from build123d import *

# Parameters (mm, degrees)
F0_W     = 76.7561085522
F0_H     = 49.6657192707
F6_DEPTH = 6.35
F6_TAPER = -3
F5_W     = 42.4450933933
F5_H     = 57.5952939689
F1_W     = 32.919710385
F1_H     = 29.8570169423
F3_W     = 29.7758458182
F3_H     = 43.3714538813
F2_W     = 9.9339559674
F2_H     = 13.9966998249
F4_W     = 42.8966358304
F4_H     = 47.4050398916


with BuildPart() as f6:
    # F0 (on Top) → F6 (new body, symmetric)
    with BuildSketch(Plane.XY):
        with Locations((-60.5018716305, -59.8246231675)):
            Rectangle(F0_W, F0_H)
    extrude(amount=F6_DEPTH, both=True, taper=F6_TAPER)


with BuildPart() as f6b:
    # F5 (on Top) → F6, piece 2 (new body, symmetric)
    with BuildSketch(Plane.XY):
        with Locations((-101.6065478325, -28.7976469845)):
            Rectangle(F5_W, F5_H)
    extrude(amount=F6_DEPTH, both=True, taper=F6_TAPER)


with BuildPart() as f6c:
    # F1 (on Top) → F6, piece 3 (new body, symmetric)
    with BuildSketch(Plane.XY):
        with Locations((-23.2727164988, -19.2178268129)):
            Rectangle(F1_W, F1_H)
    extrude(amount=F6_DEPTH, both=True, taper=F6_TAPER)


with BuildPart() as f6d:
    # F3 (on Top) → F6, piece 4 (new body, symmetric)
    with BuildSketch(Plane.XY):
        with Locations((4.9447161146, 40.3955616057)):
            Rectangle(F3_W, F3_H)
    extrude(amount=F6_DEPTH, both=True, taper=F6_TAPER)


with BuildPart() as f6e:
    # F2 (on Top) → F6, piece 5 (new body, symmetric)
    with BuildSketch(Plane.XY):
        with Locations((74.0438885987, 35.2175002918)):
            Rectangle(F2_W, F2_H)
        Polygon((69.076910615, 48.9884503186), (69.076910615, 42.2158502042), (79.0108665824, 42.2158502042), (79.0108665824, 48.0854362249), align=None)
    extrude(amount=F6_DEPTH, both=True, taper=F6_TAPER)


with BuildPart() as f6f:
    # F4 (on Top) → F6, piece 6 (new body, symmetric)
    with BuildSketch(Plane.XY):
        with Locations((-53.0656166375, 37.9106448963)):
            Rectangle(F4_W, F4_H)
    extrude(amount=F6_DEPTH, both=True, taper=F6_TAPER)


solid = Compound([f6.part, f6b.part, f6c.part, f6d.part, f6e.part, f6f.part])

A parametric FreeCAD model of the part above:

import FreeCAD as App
import Part
import Sketcher
Q = App.Units.Quantity

doc = App.newDocument("Part")
body = doc.addObject("PartDesign::Body", "Body")

# Sketch on XY plane
sketch1 = body.newObject("Sketcher::SketchObject", "Sketch")
sketch1.AttachmentSupport = (doc.getObject("XY_Plane"), [""])
sketch1.MapMode = "FlatFace"
sketch1.addGeometry(Part.LineSegment(App.Vector(-98.879926, -34.991764, 0), App.Vector(-98.879926, -84.657483, 0)), False)
sketch1.addGeometry(Part.LineSegment(App.Vector(-98.879926, -84.657483, 0), App.Vector(-22.123817, -84.657483, 0)), False)
sketch1.addGeometry(Part.LineSegment(App.Vector(-22.123817, -84.657483, 0), App.Vector(-22.123817, -34.991764, 0)), False)
sketch1.addGeometry(Part.LineSegment(App.Vector(-22.123817, -34.991764, 0), App.Vector(-98.879926, -34.991764, 0)), False)
sketch1.addConstraint(Sketcher.Constraint("Coincident", 0, 2, 1, 1))
sketch1.addConstraint(Sketcher.Constraint("Coincident", 1, 2, 2, 1))
sketch1.addConstraint(Sketcher.Constraint("Coincident", 2, 2, 3, 1))
sketch1.addConstraint(Sketcher.Constraint("Coincident", 3, 2, 0, 1))
sketch1.addConstraint(Sketcher.Constraint("Vertical", 0))
sketch1.addConstraint(Sketcher.Constraint("Horizontal", 1))
sketch1.addConstraint(Sketcher.Constraint("Vertical", 2))
sketch1.addConstraint(Sketcher.Constraint("Horizontal", 3))
sketch1.addConstraint(Sketcher.Constraint("DistanceX", 1, 1, 1, 2, 76.756109))
sketch1.addConstraint(Sketcher.Constraint("DistanceY", 0, 2, 0, 1, 49.665719))
sketch1.addConstraint(Sketcher.Constraint("DistanceX", 0, 2, -1, 1, 98.879926))
sketch1.addConstraint(Sketcher.Constraint("DistanceY", 0, 2, -1, 1, 84.657483))
pad1 = body.newObject("PartDesign::Pad", "Pad")
pad1.Profile = sketch1
pad1.Length = Q("0.5 in")
pad1.Midplane = True
pad1.TaperAngle = 3
body2 = doc.addObject("PartDesign::Body", "Body001")

# Sketch on XY plane
sketch2 = body2.newObject("Sketcher::SketchObject", "Sketch001")
sketch2.AttachmentSupport = (doc.getObject("XY_Plane001"), [""])
sketch2.MapMode = "FlatFace"
sketch2.addGeometry(Part.LineSegment(App.Vector(-122.829095, 0, 0), App.Vector(-122.829095, -57.595294, 0)), False)
sketch2.addGeometry(Part.LineSegment(App.Vector(-122.829095, -57.595294, 0), App.Vector(-80.384001, -57.595294, 0)), False)
sketch2.addGeometry(Part.LineSegment(App.Vector(-80.384001, -57.595294, 0), App.Vector(-80.384001, 0, 0)), False)
sketch2.addGeometry(Part.LineSegment(App.Vector(-80.384001, 0, 0), App.Vector(-122.829095, 0, 0)), False)
sketch2.addConstraint(Sketcher.Constraint("Coincident", 0, 2, 1, 1))
sketch2.addConstraint(Sketcher.Constraint("Coincident", 1, 2, 2, 1))
sketch2.addConstraint(Sketcher.Constraint("Coincident", 2, 2, 3, 1))
sketch2.addConstraint(Sketcher.Constraint("Coincident", 3, 2, 0, 1))
sketch2.addConstraint(Sketcher.Constraint("Vertical", 0))
sketch2.addConstraint(Sketcher.Constraint("Horizontal", 1))
sketch2.addConstraint(Sketcher.Constraint("Vertical", 2))
sketch2.addConstraint(Sketcher.Constraint("Horizontal", 3))
sketch2.addConstraint(Sketcher.Constraint("PointOnObject", 2, 2, -1))
sketch2.addConstraint(Sketcher.Constraint("DistanceX", 1, 2, -1, 1, 80.384001))
sketch2.addConstraint(Sketcher.Constraint("DistanceX", 1, 1, 1, 2, 42.445093))
sketch2.addConstraint(Sketcher.Constraint("DistanceY", 0, 2, 0, 1, 57.595294))
pad2 = body2.newObject("PartDesign::Pad", "Pad001")
pad2.Profile = sketch2
pad2.Length = Q("0.5 in")
pad2.Midplane = True
pad2.TaperAngle = 3
body3 = doc.addObject("PartDesign::Body", "Body002")

# Sketch on XY plane
sketch3 = body3.newObject("Sketcher::SketchObject", "Sketch002")
sketch3.AttachmentSupport = (doc.getObject("XY_Plane002"), [""])
sketch3.MapMode = "FlatFace"
sketch3.addGeometry(Part.LineSegment(App.Vector(-39.732572, -4.289318, 0), App.Vector(-39.732572, -34.146335, 0)), False)
sketch3.addGeometry(Part.LineSegment(App.Vector(-39.732572, -34.146335, 0), App.Vector(-6.812861, -34.146335, 0)), False)
sketch3.addGeometry(Part.LineSegment(App.Vector(-6.812861, -34.146335, 0), App.Vector(-6.812861, -4.289318, 0)), False)
sketch3.addGeometry(Part.LineSegment(App.Vector(-6.812861, -4.289318, 0), App.Vector(-39.732572, -4.289318, 0)), False)
sketch3.addConstraint(Sketcher.Constraint("Coincident", 0, 2, 1, 1))
sketch3.addConstraint(Sketcher.Constraint("Coincident", 1, 2, 2, 1))
sketch3.addConstraint(Sketcher.Constraint("Coincident", 2, 2, 3, 1))
sketch3.addConstraint(Sketcher.Constraint("Coincident", 3, 2, 0, 1))
sketch3.addConstraint(Sketcher.Constraint("Vertical", 0))
sketch3.addConstraint(Sketcher.Constraint("Horizontal", 1))
sketch3.addConstraint(Sketcher.Constraint("Vertical", 2))
sketch3.addConstraint(Sketcher.Constraint("Horizontal", 3))
sketch3.addConstraint(Sketcher.Constraint("DistanceX", 1, 1, 1, 2, 32.91971))
sketch3.addConstraint(Sketcher.Constraint("DistanceY", 0, 2, 0, 1, 29.857017))
sketch3.addConstraint(Sketcher.Constraint("DistanceX", 0, 2, -1, 1, 39.732572))
sketch3.addConstraint(Sketcher.Constraint("DistanceY", 2, 2, -1, 1, 4.289318))
pad3 = body3.newObject("PartDesign::Pad", "Pad002")
pad3.Profile = sketch3
pad3.Length = Q("0.5 in")
pad3.Midplane = True
pad3.TaperAngle = 3
body4 = doc.addObject("PartDesign::Body", "Body003")

# Sketch on XY plane
sketch4 = body4.newObject("Sketcher::SketchObject", "Sketch003")
sketch4.AttachmentSupport = (doc.getObject("XY_Plane003"), [""])
sketch4.MapMode = "FlatFace"
sketch4.addGeometry(Part.LineSegment(App.Vector(-9.943207, 62.081289, 0), App.Vector(-9.943207, 18.709835, 0)), False)
sketch4.addGeometry(Part.LineSegment(App.Vector(-9.943207, 18.709835, 0), App.Vector(19.832639, 18.709835, 0)), False)
sketch4.addGeometry(Part.LineSegment(App.Vector(19.832639, 18.709835, 0), App.Vector(19.832639, 62.081289, 0)), False)
sketch4.addGeometry(Part.LineSegment(App.Vector(19.832639, 62.081289, 0), App.Vector(-9.943207, 62.081289, 0)), False)
sketch4.addConstraint(Sketcher.Constraint("Coincident", 0, 2, 1, 1))
sketch4.addConstraint(Sketcher.Constraint("Coincident", 1, 2, 2, 1))
sketch4.addConstraint(Sketcher.Constraint("Coincident", 2, 2, 3, 1))
sketch4.addConstraint(Sketcher.Constraint("Coincident", 3, 2, 0, 1))
sketch4.addConstraint(Sketcher.Constraint("Vertical", 0))
sketch4.addConstraint(Sketcher.Constraint("Horizontal", 1))
sketch4.addConstraint(Sketcher.Constraint("Vertical", 2))
sketch4.addConstraint(Sketcher.Constraint("Horizontal", 3))
sketch4.addConstraint(Sketcher.Constraint("DistanceX", 1, 1, 1, 2, 29.775846))
sketch4.addConstraint(Sketcher.Constraint("DistanceY", 0, 2, 0, 1, 43.371454))
sketch4.addConstraint(Sketcher.Constraint("DistanceX", -1, 1, 1, 2, 19.832639))
sketch4.addConstraint(Sketcher.Constraint("DistanceY", -1, 1, 2, 2, 62.081289))
pad4 = body4.newObject("PartDesign::Pad", "Pad003")
pad4.Profile = sketch4
pad4.Length = Q("0.5 in")
pad4.Midplane = True
pad4.TaperAngle = 3
body5 = doc.addObject("PartDesign::Body", "Body004")

# Sketch on XY plane
sketch5 = body5.newObject("Sketcher::SketchObject", "Sketch004")
sketch5.AttachmentSupport = (doc.getObject("XY_Plane004"), [""])
sketch5.MapMode = "FlatFace"
sketch5.addGeometry(Part.LineSegment(App.Vector(69.076911, 28.21915, 0), App.Vector(79.010867, 28.21915, 0)), False)
sketch5.addGeometry(Part.LineSegment(App.Vector(79.010867, 28.21915, 0), App.Vector(79.010867, 48.085436, 0)), False)
sketch5.addGeometry(Part.LineSegment(App.Vector(79.010867, 48.085436, 0), App.Vector(69.076911, 48.98845, 0)), False)
sketch5.addGeometry(Part.LineSegment(App.Vector(69.076911, 48.98845, 0), App.Vector(69.076911, 28.21915, 0)), False)
sketch5.addConstraint(Sketcher.Constraint("Coincident", 0, 2, 1, 1))
sketch5.addConstraint(Sketcher.Constraint("Coincident", 1, 2, 2, 1))
sketch5.addConstraint(Sketcher.Constraint("Coincident", 2, 2, 3, 1))
sketch5.addConstraint(Sketcher.Constraint("Coincident", 3, 2, 0, 1))
sketch5.addConstraint(Sketcher.Constraint("Horizontal", 0))
sketch5.addConstraint(Sketcher.Constraint("Vertical", 1))
sketch5.addConstraint(Sketcher.Constraint("Vertical", 3))
sketch5.addConstraint(Sketcher.Constraint("DistanceY", 3, 2, 3, 1, 20.7693))
sketch5.addConstraint(Sketcher.Constraint("DistanceX", 0, 1, 0, 2, 9.933956))
sketch5.addConstraint(Sketcher.Constraint("DistanceY", 1, 1, 1, 2, 19.866286))
sketch5.addConstraint(Sketcher.Constraint("DistanceY", -1, 1, 0, 2, 28.21915))
sketch5.addConstraint(Sketcher.Constraint("DistanceX", -1, 1, 2, 2, 69.076911))
pad5 = body5.newObject("PartDesign::Pad", "Pad004")
pad5.Profile = sketch5
pad5.Length = Q("0.5 in")
pad5.Midplane = True
pad5.TaperAngle = 3
body6 = doc.addObject("PartDesign::Body", "Body005")

# Sketch on XY plane
sketch6 = body6.newObject("Sketcher::SketchObject", "Sketch005")
sketch6.AttachmentSupport = (doc.getObject("XY_Plane005"), [""])
sketch6.MapMode = "FlatFace"
sketch6.addGeometry(Part.LineSegment(App.Vector(-74.513935, 61.613165, 0), App.Vector(-74.513935, 14.208125, 0)), False)
sketch6.addGeometry(Part.LineSegment(App.Vector(-74.513935, 14.208125, 0), App.Vector(-31.617299, 14.208125, 0)), False)
sketch6.addGeometry(Part.LineSegment(App.Vector(-31.617299, 14.208125, 0), App.Vector(-31.617299, 61.613165, 0)), False)
sketch6.addGeometry(Part.LineSegment(App.Vector(-31.617299, 61.613165, 0), App.Vector(-74.513935, 61.613165, 0)), False)
sketch6.addConstraint(Sketcher.Constraint("Coincident", 0, 2, 1, 1))
sketch6.addConstraint(Sketcher.Constraint("Coincident", 1, 2, 2, 1))
sketch6.addConstraint(Sketcher.Constraint("Coincident", 2, 2, 3, 1))
sketch6.addConstraint(Sketcher.Constraint("Coincident", 3, 2, 0, 1))
sketch6.addConstraint(Sketcher.Constraint("Vertical", 0))
sketch6.addConstraint(Sketcher.Constraint("Horizontal", 1))
sketch6.addConstraint(Sketcher.Constraint("Vertical", 2))
sketch6.addConstraint(Sketcher.Constraint("Horizontal", 3))
sketch6.addConstraint(Sketcher.Constraint("DistanceY", 0, 2, 0, 1, 47.40504))
sketch6.addConstraint(Sketcher.Constraint("DistanceX", 1, 2, -1, 1, 31.617299))
sketch6.addConstraint(Sketcher.Constraint("DistanceX", 1, 1, 1, 2, 42.896636))
sketch6.addConstraint(Sketcher.Constraint("DistanceY", -1, 1, 0, 2, 14.208125))
pad6 = body6.newObject("PartDesign::Pad", "Pad005")
pad6.Profile = sketch6
pad6.Length = Q("0.5 in")
pad6.Midplane = True
pad6.TaperAngle = 3

doc.recompute()
